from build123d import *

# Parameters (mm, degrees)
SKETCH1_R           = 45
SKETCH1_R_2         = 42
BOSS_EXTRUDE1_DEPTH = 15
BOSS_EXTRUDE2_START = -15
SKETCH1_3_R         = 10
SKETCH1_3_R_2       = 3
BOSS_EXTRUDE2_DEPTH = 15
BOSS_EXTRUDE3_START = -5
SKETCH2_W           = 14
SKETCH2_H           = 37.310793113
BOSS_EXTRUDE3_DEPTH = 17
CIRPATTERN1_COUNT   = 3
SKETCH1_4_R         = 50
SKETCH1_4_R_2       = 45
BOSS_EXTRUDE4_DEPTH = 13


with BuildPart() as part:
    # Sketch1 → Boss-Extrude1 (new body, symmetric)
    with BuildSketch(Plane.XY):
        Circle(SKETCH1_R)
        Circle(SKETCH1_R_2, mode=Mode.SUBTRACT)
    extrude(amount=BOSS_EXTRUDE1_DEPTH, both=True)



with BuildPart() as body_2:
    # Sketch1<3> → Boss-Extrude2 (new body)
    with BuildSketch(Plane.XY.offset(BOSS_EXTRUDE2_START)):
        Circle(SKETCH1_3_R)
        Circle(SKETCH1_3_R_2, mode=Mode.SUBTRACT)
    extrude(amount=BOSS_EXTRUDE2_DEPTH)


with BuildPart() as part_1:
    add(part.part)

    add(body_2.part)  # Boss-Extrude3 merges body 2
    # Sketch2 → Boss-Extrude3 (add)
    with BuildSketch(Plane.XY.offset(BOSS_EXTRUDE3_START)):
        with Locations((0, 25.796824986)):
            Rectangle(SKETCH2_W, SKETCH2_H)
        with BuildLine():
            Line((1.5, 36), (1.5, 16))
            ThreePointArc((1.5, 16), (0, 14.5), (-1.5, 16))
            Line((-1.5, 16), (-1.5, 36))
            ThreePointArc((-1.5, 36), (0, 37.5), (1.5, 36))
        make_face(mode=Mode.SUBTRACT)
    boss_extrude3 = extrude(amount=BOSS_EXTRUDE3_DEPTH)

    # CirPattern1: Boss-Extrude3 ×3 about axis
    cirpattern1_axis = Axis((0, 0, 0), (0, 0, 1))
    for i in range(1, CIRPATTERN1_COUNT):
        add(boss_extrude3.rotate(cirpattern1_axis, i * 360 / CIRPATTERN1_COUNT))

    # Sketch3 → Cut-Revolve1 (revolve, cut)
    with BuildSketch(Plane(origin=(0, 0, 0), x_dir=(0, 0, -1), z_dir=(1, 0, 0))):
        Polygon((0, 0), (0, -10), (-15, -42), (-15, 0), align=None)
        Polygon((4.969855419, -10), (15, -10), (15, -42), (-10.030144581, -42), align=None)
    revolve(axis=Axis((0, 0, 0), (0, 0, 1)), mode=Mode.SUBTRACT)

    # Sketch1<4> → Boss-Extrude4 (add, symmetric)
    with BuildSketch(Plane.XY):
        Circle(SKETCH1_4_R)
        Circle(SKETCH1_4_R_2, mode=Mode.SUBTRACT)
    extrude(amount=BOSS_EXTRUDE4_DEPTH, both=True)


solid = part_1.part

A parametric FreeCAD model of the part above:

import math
import FreeCAD as App
import Part
import Sketcher


def add_polygon(sketch, points):
    """Adds a closed chain of lines whose ends are joined by coincident constraints."""
    first, n = sketch.GeometryCount, len(points)
    for a, b in zip(points, points[1:] + points[:1]):
        sketch.addGeometry(Part.LineSegment(App.Vector(*a, 0), App.Vector(*b, 0)), False)
    for i in range(n):
        sketch.addConstraint(Sketcher.Constraint("Coincident", first + i, 2, first + (i + 1) % n, 1))

doc = App.newDocument("Part")
body = doc.addObject("PartDesign::Body", "Body")

sketch1 = body.newObject("Sketcher::SketchObject", "Sketch")
sketch1.AttachmentSupport = (doc.getObject("XY_Plane"), [""])
sketch1.MapMode = "FlatFace"
sketch1.addGeometry([
    Part.Circle(App.Vector(0, 0, 0), App.Vector(0, 0, 1), 45),
    Part.Circle(App.Vector(0, 0, 0), App.Vector(0, 0, 1), 42),
], False)
sketch1.addConstraint([
    Sketcher.Constraint("Coincident", 0, 3, -1, 1),
    Sketcher.Constraint("Coincident", 1, 3, -1, 1),
    Sketcher.Constraint("Diameter", 0, 90.0),
    Sketcher.Constraint("Diameter", 1, 84.0),
])
pad1 = body.newObject("PartDesign::Pad", "Pad")
pad1.Profile = sketch1
pad1.Length = 30
pad1.Midplane = True
body2 = doc.addObject("PartDesign::Body", "Body001")

sketch2 = body2.newObject("Sketcher::SketchObject", "Sketch001")
sketch2.AttachmentSupport = (doc.getObject("XY_Plane001"), [""])
sketch2.MapMode = "FlatFace"
sketch2.AttachmentOffset = App.Placement(App.Vector(0, 0, -15), App.Rotation())
sketch2.addGeometry([
    Part.Circle(App.Vector(0, 0, 0), App.Vector(0, 0, 1), 10),
    Part.Circle(App.Vector(0, 0, 0), App.Vector(0, 0, 1), 3),
], False)
sketch2.addConstraint([
    Sketcher.Constraint("Coincident", 0, 3, -1, 1),
    Sketcher.Constraint("Coincident", 1, 3, -1, 1),
    Sketcher.Constraint("Diameter", 0, 20.0),
    Sketcher.Constraint("Diameter", 1, 6.0),
])
pad2 = body2.newObject("PartDesign::Pad", "Pad001")
pad2.Profile = sketch2
pad2.Length = 15
body.AllowCompound = True
doc.recompute()

boolean = body.newObject("PartDesign::Boolean", "Boolean")
boolean.Type = "Fuse"
boolean.addObjects([body2])

sketch3 = body.newObject("Sketcher::SketchObject", "Sketch002")
sketch3.AttachmentSupport = (doc.getObject("XY_Plane"), [""])
sketch3.MapMode = "FlatFace"
sketch3.AttachmentOffset = App.Placement(App.Vector(0, 0, -5), App.Rotation())
add_polygon(sketch3, [(-7, 44.452222), (-7, 7.141428), (7, 7.141428), (7, 44.452222)])
sketch3.addGeometry(Part.ArcOfCircle(Part.Circle(App.Vector(0, 36, 0), App.Vector(0, 0, 1), 1.5), math.radians(0), math.radians(180)), False)
sketch3.addGeometry(Part.LineSegment(App.Vector(1.5, 36, 0), App.Vector(1.5, 16, 0)), False)
sketch3.addGeometry(Part.ArcOfCircle(Part.Circle(App.Vector(0, 16, 0), App.Vector(0, 0, 1), 1.5), math.radians(180), math.radians(360)), False)
sketch3.addGeometry(Part.LineSegment(App.Vector(-1.5, 16, 0), App.Vector(-1.5, 36, 0)), False)
sketch3.addConstraint([
    Sketcher.Constraint("Tangent", 4, 1, 5, 1),
    Sketcher.Constraint("Tangent", 5, 2, 6, 2),
    Sketcher.Constraint("Tangent", 6, 1, 7, 1),
    Sketcher.Constraint("Tangent", 7, 2, 4, 2),
    Sketcher.Constraint("Vertical", 0),
    Sketcher.Constraint("Horizontal", 1),
    Sketcher.Constraint("Vertical", 2),
    Sketcher.Constraint("Horizontal", 3),
    Sketcher.Constraint("Vertical", 5),
    Sketcher.Constraint("Vertical", 7),
    Sketcher.Constraint("PointOnObject", 4, 3, -2),
    Sketcher.Constraint("Radius", 4, 1.5),
    Sketcher.Constraint("DistanceX", 1, 1, 1, 2, 14.0),
    Sketcher.Constraint("DistanceY", 5, 2, 5, 1, 20.0),
    Sketcher.Constraint("DistanceY", -1, 1, 4, 3, 36.0),
    Sketcher.Constraint("DistanceX", 0, 2, -1, 1, 7.0),
    Sketcher.Constraint("DistanceY", 0, 2, 0, 1, 37.310793),
    Sketcher.Constraint("DistanceY", -1, 1, 0, 2, 7.141428),
])
pad3 = body.newObject("PartDesign::Pad", "Pad002")
pad3.Profile = sketch3
pad3.Length = 17
doc.recompute()

polarpattern = body.newObject("PartDesign::PolarPattern", "PolarPattern")
polarpattern.Originals = [pad3]
polarpattern.Axis = (doc.getObject("Z_Axis"), [""])
polarpattern.Angle = 360
polarpattern.Occurrences = 3
body.Tip = polarpattern

sketch4 = body.newObject("Sketcher::SketchObject", "Sketch003")
sketch4.AttachmentSupport = (doc.getObject("YZ_Plane"), [""])
sketch4.MapMode = "FlatFace"
add_polygon(sketch4, [(-10, 0), (0, 0), (0, 15), (-42, 15)])
add_polygon(sketch4, [(-10, -15), (-10, -4.969855), (-42, 10.030145), (-42, -15)])
sketch4.addConstraint([
    Sketcher.Constraint("Horizontal", 0),
    Sketcher.Constraint("Vertical", 1),
    Sketcher.Constraint("Horizontal", 2),
    Sketcher.Constraint("Vertical", 4),
    Sketcher.Constraint("Vertical", 6),
    Sketcher.Constraint("Horizontal", 7),
    Sketcher.Constraint("Coincident", 0, 2, -1, 1),
    Sketcher.Constraint("Symmetric", 2, 2, 6, 2, -1),
    Sketcher.Constraint("Parallel", 3, 5),
    Sketcher.Constraint("Vertical", 3, 2, 4, 2),
    Sketcher.Constraint("DistanceX", 0, 1, 0, 2, 10.0),
    Sketcher.Constraint("DistanceX", 2, 2, 2, 1, 42.0),
    Sketcher.Constraint("DistanceY", 1, 1, 1, 2, 15.0),
    Sketcher.Constraint("DistanceY", 4, 1, 4, 2, 10.030145),
])
groove = body.newObject("PartDesign::Groove", "Groove")
groove.Profile = sketch4
groove.ReferenceAxis = (sketch4, ["V_Axis"])
groove.Angle = 360

sketch5 = body.newObject("Sketcher::SketchObject", "Sketch004")
sketch5.AttachmentSupport = (doc.getObject("XY_Plane"), [""])
sketch5.MapMode = "FlatFace"
sketch5.addGeometry([
    Part.Circle(App.Vector(0, 0, 0), App.Vector(0, 0, 1), 50),
    Part.Circle(App.Vector(0, 0, 0), App.Vector(0, 0, 1), 45),
], False)
sketch5.addConstraint([
    Sketcher.Constraint("Coincident", 0, 3, -1, 1),
    Sketcher.Constraint("Coincident", 1, 3, -1, 1),
    Sketcher.Constraint("Diameter", 0, 100.0),
    Sketcher.Constraint("Diameter", 1, 90.0),
])
pad4 = body.newObject("PartDesign::Pad", "Pad003")
pad4.Profile = sketch5
pad4.Length = 26
pad4.Midplane = True

doc.recompute()
